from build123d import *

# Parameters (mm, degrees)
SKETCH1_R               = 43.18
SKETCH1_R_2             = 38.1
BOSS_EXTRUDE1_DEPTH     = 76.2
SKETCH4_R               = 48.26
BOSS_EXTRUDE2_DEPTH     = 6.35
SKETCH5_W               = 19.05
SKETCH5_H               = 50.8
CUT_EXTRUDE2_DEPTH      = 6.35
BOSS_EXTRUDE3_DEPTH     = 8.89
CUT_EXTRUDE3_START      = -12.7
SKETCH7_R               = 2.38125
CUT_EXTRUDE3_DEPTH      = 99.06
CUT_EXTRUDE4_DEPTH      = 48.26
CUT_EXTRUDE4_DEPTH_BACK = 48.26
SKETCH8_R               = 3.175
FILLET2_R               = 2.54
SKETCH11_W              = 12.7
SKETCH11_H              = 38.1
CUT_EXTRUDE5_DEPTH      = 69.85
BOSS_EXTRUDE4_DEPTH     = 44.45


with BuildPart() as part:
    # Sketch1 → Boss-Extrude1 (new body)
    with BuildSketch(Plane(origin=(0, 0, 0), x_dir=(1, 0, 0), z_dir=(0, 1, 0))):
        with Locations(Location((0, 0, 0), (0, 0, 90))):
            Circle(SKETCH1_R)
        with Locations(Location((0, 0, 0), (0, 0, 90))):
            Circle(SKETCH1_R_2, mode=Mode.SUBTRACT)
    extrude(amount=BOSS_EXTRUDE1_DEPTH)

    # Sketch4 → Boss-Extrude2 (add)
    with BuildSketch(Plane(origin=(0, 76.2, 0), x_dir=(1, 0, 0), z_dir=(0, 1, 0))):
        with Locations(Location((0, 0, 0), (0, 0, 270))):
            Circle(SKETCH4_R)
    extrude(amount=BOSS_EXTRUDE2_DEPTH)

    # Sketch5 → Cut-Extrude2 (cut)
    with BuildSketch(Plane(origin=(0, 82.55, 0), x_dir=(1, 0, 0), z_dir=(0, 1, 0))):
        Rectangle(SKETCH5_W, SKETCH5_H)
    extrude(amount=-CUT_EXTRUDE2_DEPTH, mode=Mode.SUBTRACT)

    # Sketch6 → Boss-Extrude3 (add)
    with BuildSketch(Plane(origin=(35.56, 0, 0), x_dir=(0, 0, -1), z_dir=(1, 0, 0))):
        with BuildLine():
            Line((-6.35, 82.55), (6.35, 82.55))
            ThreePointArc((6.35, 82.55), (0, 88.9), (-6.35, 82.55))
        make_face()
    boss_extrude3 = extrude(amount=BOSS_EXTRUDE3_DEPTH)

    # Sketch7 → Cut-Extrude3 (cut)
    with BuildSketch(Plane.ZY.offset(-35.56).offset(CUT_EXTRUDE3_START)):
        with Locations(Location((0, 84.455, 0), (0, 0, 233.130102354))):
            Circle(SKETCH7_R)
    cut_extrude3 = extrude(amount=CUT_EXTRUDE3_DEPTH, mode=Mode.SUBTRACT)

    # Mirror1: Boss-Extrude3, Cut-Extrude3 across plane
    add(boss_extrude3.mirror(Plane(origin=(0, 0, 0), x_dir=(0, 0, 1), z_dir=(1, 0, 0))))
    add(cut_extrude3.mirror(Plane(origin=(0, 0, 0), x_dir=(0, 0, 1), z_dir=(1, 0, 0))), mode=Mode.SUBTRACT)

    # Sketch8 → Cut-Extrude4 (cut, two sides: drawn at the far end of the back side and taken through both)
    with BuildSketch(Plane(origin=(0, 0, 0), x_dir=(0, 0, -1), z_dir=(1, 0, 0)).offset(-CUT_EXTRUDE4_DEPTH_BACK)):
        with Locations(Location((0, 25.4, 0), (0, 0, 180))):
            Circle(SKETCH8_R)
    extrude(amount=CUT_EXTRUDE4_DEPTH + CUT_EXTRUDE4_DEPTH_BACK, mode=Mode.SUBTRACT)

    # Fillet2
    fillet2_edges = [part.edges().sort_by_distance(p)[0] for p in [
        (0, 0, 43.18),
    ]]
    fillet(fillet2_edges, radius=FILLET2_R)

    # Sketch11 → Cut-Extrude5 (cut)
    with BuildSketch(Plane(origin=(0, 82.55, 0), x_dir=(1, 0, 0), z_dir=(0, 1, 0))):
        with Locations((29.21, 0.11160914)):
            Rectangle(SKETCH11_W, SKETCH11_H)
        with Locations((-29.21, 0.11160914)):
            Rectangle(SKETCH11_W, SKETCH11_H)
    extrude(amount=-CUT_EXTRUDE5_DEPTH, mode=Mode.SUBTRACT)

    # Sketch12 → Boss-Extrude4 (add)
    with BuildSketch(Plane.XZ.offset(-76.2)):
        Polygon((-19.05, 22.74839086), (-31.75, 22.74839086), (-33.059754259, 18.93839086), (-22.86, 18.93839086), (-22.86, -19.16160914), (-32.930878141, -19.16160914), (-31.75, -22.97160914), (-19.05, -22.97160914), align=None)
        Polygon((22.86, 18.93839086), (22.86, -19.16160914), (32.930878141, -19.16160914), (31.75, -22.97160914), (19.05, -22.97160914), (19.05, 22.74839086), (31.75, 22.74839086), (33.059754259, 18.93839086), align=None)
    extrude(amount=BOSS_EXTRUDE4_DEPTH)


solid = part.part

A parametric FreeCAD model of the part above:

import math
import FreeCAD as App
import Part
import Sketcher
Q = App.Units.Quantity


def edges_at(feature, points):
    """Names of the edges that pass closest to the given points."""
    edges = feature.Shape.Edges
    near = lambda p: min(range(len(edges)), key=lambda i: edges[i].distToShape(Part.Vertex(*p))[0])
    return sorted({f"Edge{near(p) + 1}" for p in points})

doc = App.newDocument("Part")
body = doc.addObject("PartDesign::Body", "Body")

# Sketch on XZ plane
sketch1 = body.newObject("Sketcher::SketchObject", "Sketch")
sketch1.AttachmentSupport = (doc.getObject("XZ_Plane"), [""])
sketch1.MapMode = "FlatFace"
sketch1.addGeometry([
    Part.Circle(App.Vector(0, 0, 0), App.Vector(0, 0, 1), 43),
    Part.Circle(App.Vector(0, 0, 0), App.Vector(0, 0, 1), 38),
], False)
sketch1.addConstraint([
    Sketcher.Constraint("Coincident", 0, 3, -1, 1),
    Sketcher.Constraint("Coincident", 1, 3, -1, 1),
    Sketcher.Constraint("Diameter", 1, Q("3 in")),
    Sketcher.Constraint("Diameter", 0, Q("3.4 in")),
])
pad1 = body.newObject("PartDesign::Pad", "Pad")
pad1.Profile = sketch1
pad1.Length = Q("3 in")
pad1.Reversed = True

# Sketch on XZ plane
sketch2 = body.newObject("Sketcher::SketchObject", "Sketch001")
sketch2.AttachmentSupport = (doc.getObject("XZ_Plane"), [""])
sketch2.MapMode = "FlatFace"
sketch2.AttachmentOffset = App.Placement(App.Vector(0, 0, -3 * 25.4), App.Rotation())
sketch2.addGeometry(Part.Circle(App.Vector(0, 0, 0), App.Vector(0, 0, 1), 48), False)
sketch2.addConstraint([
    Sketcher.Constraint("Coincident", 0, 3, -1, 1),
    Sketcher.Constraint("Diameter", 0, Q("3.8 in")),
])
pad2 = body.newObject("PartDesign::Pad", "Pad001")
pad2.Profile = sketch2
pad2.Length = Q("0.25 in")
pad2.Reversed = True

# Sketch on XZ plane
sketch3 = body.newObject("Sketcher::SketchObject", "Sketch002")
sketch3.AttachmentSupport = (doc.getObject("XZ_Plane"), [""])
sketch3.MapMode = "FlatFace"
sketch3.AttachmentOffset = App.Placement(App.Vector(0, 0, -3.25 * 25.4), App.Rotation())
sketch3.addGeometry([
    Part.LineSegment(App.Vector(-10, -25, 0), App.Vector(-10, 25, 0)),
    Part.LineSegment(App.Vector(-10, 25, 0), App.Vector(10, 25, 0)),
    Part.LineSegment(App.Vector(10, 25, 0), App.Vector(10, -25, 0)),
    Part.LineSegment(App.Vector(10, -25, 0), App.Vector(-10, -25, 0)),
], False)
sketch3.addConstraint([
    Sketcher.Constraint("Coincident", 0, 2, 1, 1),
    Sketcher.Constraint("Coincident", 1, 2, 2, 1),
    Sketcher.Constraint("Coincident", 2, 2, 3, 1),
    Sketcher.Constraint("Coincident", 3, 2, 0, 1),
    Sketcher.Constraint("Vertical", 0),
    Sketcher.Constraint("Horizontal", 1),
    Sketcher.Constraint("Vertical", 2),
    Sketcher.Constraint("Horizontal", 3),
    Sketcher.Constraint("Symmetric", 0, 2, 2, 2, -1, 1),
    Sketcher.Constraint("DistanceY", 0, 1, 0, 2, Q("2 in")),
    Sketcher.Constraint("DistanceX", 1, 1, 1, 2, Q("0.75 in")),
])
pocket1 = body.newObject("PartDesign::Pocket", "Pocket")
pocket1.Profile = sketch3
pocket1.Length = Q("0.25 in")
pocket1.Reversed = True

# Sketch on YZ plane
sketch4 = body.newObject("Sketcher::SketchObject", "Sketch003")
sketch4.AttachmentSupport = (doc.getObject("YZ_Plane"), [""])
sketch4.MapMode = "FlatFace"
sketch4.AttachmentOffset = App.Placement(App.Vector(0, 0, 1.4 * 25.4), App.Rotation())
sketch4.addGeometry([
    Part.LineSegment(App.Vector(83, 6, 0), App.Vector(83, -6, 0)),
    Part.ArcOfCircle(Part.Circle(App.Vector(83, 0, 0), App.Vector(0, 0, 1), 6), math.radians(-90), math.radians(90)),
], False)
sketch4.addConstraint([
    Sketcher.Constraint("Coincident", 0, 1, 1, 2),
    Sketcher.Constraint("Coincident", 1, 1, 0, 2),
    Sketcher.Constraint("Vertical", 0),
    Sketcher.Constraint("PointOnObject", 1, 3, -1),
    Sketcher.Constraint("Vertical", 1, 3, 0, 1),
    Sketcher.Constraint("Radius", 1, Q("0.25 in")),
    Sketcher.Constraint("DistanceX", -1, 1, 1, 3, Q("3.25 in")),
])
pad3 = body.newObject("PartDesign::Pad", "Pad002")
pad3.Profile = sketch4
pad3.Length = Q("0.35 in")

# Sketch on YZ plane
sketch5 = body.newObject("Sketcher::SketchObject", "Sketch004")
sketch5.AttachmentSupport = (doc.getObject("YZ_Plane"), [""])
sketch5.MapMode = "FlatFace"
sketch5.AttachmentOffset = App.Placement(App.Vector(0, 0, 1.9 * 25.4), App.Rotation())
sketch5.addGeometry(Part.Circle(App.Vector(84.5, 0, 0), App.Vector(0, 0, 1), 2.4), False)
sketch5.addConstraint([
    Sketcher.Constraint("PointOnObject", 0, 3, -1),
    Sketcher.Constraint("Diameter", 0, Q("0.1875 in")),
    Sketcher.Constraint("DistanceX", -1, 1, 0, 3, Q("3.325 in")),
])
pocket2 = body.newObject("PartDesign::Pocket", "Pocket001")
pocket2.Profile = sketch5
pocket2.Length = Q("3.9 in")
doc.recompute()

mirrored = body.newObject("PartDesign::Mirrored", "Mirrored")
mirrored.Originals = [pad3, pocket2]
mirrored.MirrorPlane = (doc.getObject("YZ_Plane"), [""])
body.Tip = mirrored

# Sketch on YZ plane
sketch6 = body.newObject("Sketcher::SketchObject", "Sketch005")
sketch6.AttachmentSupport = (doc.getObject("YZ_Plane"), [""])
sketch6.MapMode = "FlatFace"
sketch6.addGeometry(Part.Circle(App.Vector(25.4, 0, 0), App.Vector(0, 0, 1), 3.2), False)
sketch6.addConstraint([
    Sketcher.Constraint("PointOnObject", 0, 3, -1),
    Sketcher.Constraint("Diameter", 0, Q("0.25 in")),
    Sketcher.Constraint("DistanceX", -1, 1, 0, 3, Q("1 in")),
])
pocket3 = body.newObject("PartDesign::Pocket", "Pocket002")
pocket3.Profile = sketch6
pocket3.Type = "ThroughAll"
pocket3.Midplane = True
doc.recompute()

fillet = body.newObject("PartDesign::Fillet", "Fillet")
fillet.Base = (pocket3, edges_at(pocket3, [(0, 0, 43.18)]))
fillet.Radius = Q("0.1 in")

# Sketch on XZ plane
sketch7 = body.newObject("Sketcher::SketchObject", "Sketch006")
sketch7.AttachmentSupport = (doc.getObject("XZ_Plane"), [""])
sketch7.MapMode = "FlatFace"
sketch7.AttachmentOffset = App.Placement(App.Vector(0, 0, -3.25 * 25.4), App.Rotation())
sketch7.addGeometry([
    Part.LineSegment(App.Vector(23, -19, 0), App.Vector(23, 19, 0)),  # 0
    Part.LineSegment(App.Vector(23, 19, 0), App.Vector(36, 19, 0)),  # 1
    Part.LineSegment(App.Vector(36, 19, 0), App.Vector(36, -19, 0)),  # 2
    Part.LineSegment(App.Vector(36, -19, 0), App.Vector(23, -19, 0)),  # 3
    Part.LineSegment(App.Vector(-36, -19, 0), App.Vector(-36, 19, 0)),  # 4
    Part.LineSegment(App.Vector(-36, 19, 0), App.Vector(-23, 19, 0)),  # 5
    Part.LineSegment(App.Vector(-23, 19, 0), App.Vector(-23, -19, 0)),  # 6
    Part.LineSegment(App.Vector(-23, -19, 0), App.Vector(-36, -19, 0)),  # 7
], False)
sketch7.addConstraint([
    Sketcher.Constraint("Coincident", 0, 2, 1, 1),
    Sketcher.Constraint("Coincident", 1, 2, 2, 1),
    Sketcher.Constraint("Coincident", 2, 2, 3, 1),
    Sketcher.Constraint("Coincident", 3, 2, 0, 1),
    Sketcher.Constraint("Coincident", 4, 2, 5, 1),
    Sketcher.Constraint("Coincident", 5, 2, 6, 1),
    Sketcher.Constraint("Coincident", 6, 2, 7, 1),
    Sketcher.Constraint("Coincident", 7, 2, 4, 1),
    Sketcher.Constraint("Vertical", 0),
    Sketcher.Constraint("Horizontal", 1),
    Sketcher.Constraint("Vertical", 2),
    Sketcher.Constraint("Horizontal", 3),
    Sketcher.Constraint("Vertical", 4),
    Sketcher.Constraint("Horizontal", 5),
    Sketcher.Constraint("Vertical", 6),
    Sketcher.Constraint("Horizontal", 7),
    Sketcher.Constraint("Symmetric", 1, 2, 4, 2, -2),
    Sketcher.Constraint("Symmetric", 3, 2, 6, 2, -2),
    Sketcher.Constraint("DistanceX", 1, 1, 1, 2, Q("0.5 in")),
    Sketcher.Constraint("DistanceY", 0, 1, 0, 2, Q("1.5 in")),
    Sketcher.Constraint("DistanceX", -1, 1, 0, 2, Q("0.9 in")),
    Sketcher.Constraint("DistanceY", -1, 1, 0, 2, 18.938391),
])
pocket4 = body.newObject("PartDesign::Pocket", "Pocket003")
pocket4.Profile = sketch7
pocket4.Length = Q("2.75 in")
pocket4.Reversed = True

# Sketch on XZ plane
sketch8 = body.newObject("Sketcher::SketchObject", "Sketch007")
sketch8.AttachmentSupport = (doc.getObject("XZ_Plane"), [""])
sketch8.MapMode = "FlatFace"
sketch8.AttachmentOffset = App.Placement(App.Vector(0, 0, -3 * 25.4), App.Rotation())
sketch8.addGeometry([
    Part.LineSegment(App.Vector(-19.1, 22.7, 0), App.Vector(-31.8, 22.7, 0)),  # 0
    Part.LineSegment(App.Vector(-31.8, 22.7, 0), App.Vector(-33.1, 18.9, 0)),  # 1
    Part.LineSegment(App.Vector(-33.1, 18.9, 0), App.Vector(-22.9, 18.9, 0)),  # 2
    Part.LineSegment(App.Vector(-22.9, 18.9, 0), App.Vector(-22.9, -19.2, 0)),  # 3
    Part.LineSegment(App.Vector(-22.9, -19.2, 0), App.Vector(-32.9, -19.2, 0)),  # 4
    Part.LineSegment(App.Vector(-32.9, -19.2, 0), App.Vector(-31.8, -23, 0)),  # 5
    Part.LineSegment(App.Vector(-31.8, -23, 0), App.Vector(-19.1, -23, 0)),  # 6
    Part.LineSegment(App.Vector(-19.1, -23, 0), App.Vector(-19.1, 22.7, 0)),  # 7
    Part.LineSegment(App.Vector(22.9, -19.2, 0), App.Vector(22.9, 18.9, 0)),  # 8
    Part.LineSegment(App.Vector(22.9, 18.9, 0), App.Vector(33.1, 18.9, 0)),  # 9
    Part.LineSegment(App.Vector(33.1, 18.9, 0), App.Vector(31.8, 22.7, 0)),  # 10
    Part.LineSegment(App.Vector(31.8, 22.7, 0), App.Vector(19.1, 22.7, 0)),  # 11
    Part.LineSegment(App.Vector(19.1, 22.7, 0), App.Vector(19.1, -23, 0)),  # 12
    Part.LineSegment(App.Vector(19.1, -23, 0), App.Vector(31.8, -23, 0)),  # 13
    Part.LineSegment(App.Vector(31.8, -23, 0), App.Vector(32.9, -19.2, 0)),  # 14
    Part.LineSegment(App.Vector(32.9, -19.2, 0), App.Vector(22.9, -19.2, 0)),  # 15
], False)
sketch8.addConstraint([
    Sketcher.Constraint("Coincident", 0, 2, 1, 1),
    Sketcher.Constraint("Coincident", 1, 2, 2, 1),
    Sketcher.Constraint("Coincident", 2, 2, 3, 1),
    Sketcher.Constraint("Coincident", 3, 2, 4, 1),
    Sketcher.Constraint("Coincident", 4, 2, 5, 1),
    Sketcher.Constraint("Coincident", 5, 2, 6, 1),
    Sketcher.Constraint("Coincident", 6, 2, 7, 1),
    Sketcher.Constraint("Coincident", 7, 2, 0, 1),
    Sketcher.Constraint("Coincident", 8, 2, 9, 1),
    Sketcher.Constraint("Coincident", 9, 2, 10, 1),
    Sketcher.Constraint("Coincident", 10, 2, 11, 1),
    Sketcher.Constraint("Coincident", 11, 2, 12, 1),
    Sketcher.Constraint("Coincident", 12, 2, 13, 1),
    Sketcher.Constraint("Coincident", 13, 2, 14, 1),
    Sketcher.Constraint("Coincident", 14, 2, 15, 1),
    Sketcher.Constraint("Coincident", 15, 2, 8, 1),
    Sketcher.Constraint("Horizontal", 0),
    Sketcher.Constraint("Horizontal", 2),
    Sketcher.Constraint("Vertical", 3),
    Sketcher.Constraint("Horizontal", 4),
    Sketcher.Constraint("Horizontal", 6),
    Sketcher.Constraint("Vertical", 7),
    Sketcher.Constraint("Vertical", 8),
    Sketcher.Constraint("Horizontal", 9),
    Sketcher.Constraint("Horizontal", 11),
    Sketcher.Constraint("Vertical", 12),
    Sketcher.Constraint("Horizontal", 13),
    Sketcher.Constraint("Horizontal", 15),
    Sketcher.Constraint("Symmetric", 2, 2, 8, 2, -2),
    Sketcher.Constraint("Symmetric", 0, 2, 10, 2, -2),
    Sketcher.Constraint("Symmetric", 6, 2, 12, 2, -2),
    Sketcher.Constraint("Symmetric", 4, 2, 14, 2, -2),
    Sketcher.Constraint("Vertical", 0, 2, 5, 2),
    Sketcher.Constraint("Vertical", 10, 2, 13, 2),
    Sketcher.Constraint("Equal", 2, 9),
    Sketcher.Constraint("DistanceX", 0, 2, 0, 1, Q("0.5 in")),
    Sketcher.Constraint("DistanceY", 3, 2, 3, 1, Q("1.5 in")),
    Sketcher.Constraint("DistanceY", 7, 1, 7, 2, Q("1.8 in")),
    Sketcher.Constraint("DistanceX", 7, 2, 10, 2, Q("2 in")),
    Sketcher.Constraint("DistanceX", 2, 2, -1, 1, Q("0.9 in")),
    Sketcher.Constraint("DistanceY", 1, 2, 0, 2, Q("0.15 in")),
    Sketcher.Constraint("DistanceX", 4, 2, 4, 1, 10.070878),
    Sketcher.Constraint("Distance", 1, 4.028841),
    Sketcher.Constraint("DistanceY", -1, 1, 0, 2, 22.748391),
])
pad4 = body.newObject("PartDesign::Pad", "Pad003")
pad4.Profile = sketch8
pad4.Length = Q("1.75 in")

doc.recompute()
